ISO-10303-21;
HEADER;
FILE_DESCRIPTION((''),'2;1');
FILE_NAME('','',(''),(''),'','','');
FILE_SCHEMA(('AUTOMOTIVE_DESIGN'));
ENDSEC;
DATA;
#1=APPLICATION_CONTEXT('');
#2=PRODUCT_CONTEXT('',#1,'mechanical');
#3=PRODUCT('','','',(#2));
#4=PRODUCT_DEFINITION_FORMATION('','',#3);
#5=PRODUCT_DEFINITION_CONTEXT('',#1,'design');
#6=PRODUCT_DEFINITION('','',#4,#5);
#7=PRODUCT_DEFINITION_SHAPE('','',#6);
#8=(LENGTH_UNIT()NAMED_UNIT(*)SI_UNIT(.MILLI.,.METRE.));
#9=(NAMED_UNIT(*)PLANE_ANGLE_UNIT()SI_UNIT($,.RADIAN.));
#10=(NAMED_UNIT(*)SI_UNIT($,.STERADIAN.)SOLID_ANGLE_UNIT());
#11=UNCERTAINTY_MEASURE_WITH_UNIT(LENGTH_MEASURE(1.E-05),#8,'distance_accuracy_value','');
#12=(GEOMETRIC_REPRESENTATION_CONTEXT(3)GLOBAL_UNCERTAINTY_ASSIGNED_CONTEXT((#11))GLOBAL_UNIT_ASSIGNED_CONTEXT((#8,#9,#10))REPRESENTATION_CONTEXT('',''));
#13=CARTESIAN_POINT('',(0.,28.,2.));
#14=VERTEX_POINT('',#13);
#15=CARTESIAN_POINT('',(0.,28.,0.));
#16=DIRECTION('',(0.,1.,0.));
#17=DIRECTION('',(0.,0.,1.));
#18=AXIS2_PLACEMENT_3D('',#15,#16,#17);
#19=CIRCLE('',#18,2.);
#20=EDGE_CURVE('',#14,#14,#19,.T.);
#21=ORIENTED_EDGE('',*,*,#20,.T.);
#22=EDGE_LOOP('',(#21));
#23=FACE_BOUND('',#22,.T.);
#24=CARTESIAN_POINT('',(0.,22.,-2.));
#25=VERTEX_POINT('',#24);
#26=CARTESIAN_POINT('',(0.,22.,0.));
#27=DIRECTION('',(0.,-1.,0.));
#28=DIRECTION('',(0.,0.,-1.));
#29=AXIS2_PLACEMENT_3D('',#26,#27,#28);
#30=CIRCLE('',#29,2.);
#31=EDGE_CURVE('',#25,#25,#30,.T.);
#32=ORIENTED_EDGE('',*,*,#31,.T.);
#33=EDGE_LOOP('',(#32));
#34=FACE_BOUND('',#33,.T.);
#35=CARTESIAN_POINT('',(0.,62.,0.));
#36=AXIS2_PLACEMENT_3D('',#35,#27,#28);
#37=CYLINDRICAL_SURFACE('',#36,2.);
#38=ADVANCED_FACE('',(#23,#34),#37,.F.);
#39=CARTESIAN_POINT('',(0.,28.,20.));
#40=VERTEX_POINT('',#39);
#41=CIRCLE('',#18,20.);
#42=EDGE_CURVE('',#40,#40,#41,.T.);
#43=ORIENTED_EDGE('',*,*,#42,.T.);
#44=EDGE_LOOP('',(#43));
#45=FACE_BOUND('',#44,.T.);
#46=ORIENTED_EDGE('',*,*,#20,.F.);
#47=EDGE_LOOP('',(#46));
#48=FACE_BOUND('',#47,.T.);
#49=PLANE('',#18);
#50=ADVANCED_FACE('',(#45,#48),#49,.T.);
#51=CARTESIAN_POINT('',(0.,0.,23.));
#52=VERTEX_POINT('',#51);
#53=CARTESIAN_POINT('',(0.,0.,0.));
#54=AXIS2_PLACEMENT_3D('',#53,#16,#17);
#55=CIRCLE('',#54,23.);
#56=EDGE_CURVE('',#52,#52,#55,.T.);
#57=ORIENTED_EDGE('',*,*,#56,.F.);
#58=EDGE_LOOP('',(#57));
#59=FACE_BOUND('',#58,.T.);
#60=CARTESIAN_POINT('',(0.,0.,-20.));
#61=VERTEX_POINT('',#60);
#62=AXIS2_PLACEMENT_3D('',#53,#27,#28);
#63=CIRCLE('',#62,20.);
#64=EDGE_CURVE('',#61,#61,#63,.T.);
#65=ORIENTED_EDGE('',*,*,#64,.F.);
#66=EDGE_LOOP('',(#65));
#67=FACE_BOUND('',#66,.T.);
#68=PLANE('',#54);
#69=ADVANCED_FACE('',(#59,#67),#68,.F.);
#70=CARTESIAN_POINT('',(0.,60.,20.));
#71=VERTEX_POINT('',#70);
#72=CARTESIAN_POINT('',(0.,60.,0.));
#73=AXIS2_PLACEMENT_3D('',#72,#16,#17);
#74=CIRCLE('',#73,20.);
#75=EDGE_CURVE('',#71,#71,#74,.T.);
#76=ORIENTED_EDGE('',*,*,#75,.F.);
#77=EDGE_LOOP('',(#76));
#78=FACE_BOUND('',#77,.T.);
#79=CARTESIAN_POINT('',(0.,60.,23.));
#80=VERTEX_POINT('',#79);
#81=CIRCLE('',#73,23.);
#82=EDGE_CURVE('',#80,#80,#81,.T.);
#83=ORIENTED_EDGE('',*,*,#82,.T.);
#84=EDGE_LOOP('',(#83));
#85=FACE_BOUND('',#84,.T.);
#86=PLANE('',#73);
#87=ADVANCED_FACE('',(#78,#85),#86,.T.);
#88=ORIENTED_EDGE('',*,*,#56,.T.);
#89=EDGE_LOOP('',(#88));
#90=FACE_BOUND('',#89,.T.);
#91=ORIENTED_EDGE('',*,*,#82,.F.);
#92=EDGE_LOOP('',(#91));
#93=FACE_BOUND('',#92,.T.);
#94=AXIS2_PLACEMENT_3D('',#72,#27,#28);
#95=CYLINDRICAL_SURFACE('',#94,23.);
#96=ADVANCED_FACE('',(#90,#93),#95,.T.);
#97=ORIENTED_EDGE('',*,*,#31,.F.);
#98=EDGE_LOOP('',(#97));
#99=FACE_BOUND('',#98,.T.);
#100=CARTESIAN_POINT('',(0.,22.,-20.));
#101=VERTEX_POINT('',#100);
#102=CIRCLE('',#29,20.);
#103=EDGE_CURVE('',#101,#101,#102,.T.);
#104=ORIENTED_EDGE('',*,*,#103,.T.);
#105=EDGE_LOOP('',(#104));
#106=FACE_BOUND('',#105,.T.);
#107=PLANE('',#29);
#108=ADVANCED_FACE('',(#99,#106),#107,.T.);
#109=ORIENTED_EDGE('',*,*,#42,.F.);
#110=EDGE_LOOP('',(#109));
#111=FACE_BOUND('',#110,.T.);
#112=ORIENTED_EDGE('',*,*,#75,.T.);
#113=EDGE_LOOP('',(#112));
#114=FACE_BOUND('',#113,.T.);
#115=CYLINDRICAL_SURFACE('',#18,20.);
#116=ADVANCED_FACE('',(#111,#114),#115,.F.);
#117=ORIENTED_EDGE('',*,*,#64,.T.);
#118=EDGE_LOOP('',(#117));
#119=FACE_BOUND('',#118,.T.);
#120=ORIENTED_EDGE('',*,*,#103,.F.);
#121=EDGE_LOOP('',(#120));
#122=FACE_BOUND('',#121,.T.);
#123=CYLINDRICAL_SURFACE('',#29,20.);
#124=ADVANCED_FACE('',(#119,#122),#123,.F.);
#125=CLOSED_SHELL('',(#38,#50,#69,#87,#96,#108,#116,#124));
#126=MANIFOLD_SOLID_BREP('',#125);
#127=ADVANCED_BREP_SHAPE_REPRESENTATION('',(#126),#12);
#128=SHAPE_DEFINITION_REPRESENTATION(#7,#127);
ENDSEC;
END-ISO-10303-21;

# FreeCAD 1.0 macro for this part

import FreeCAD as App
import Part
import Sketcher

doc = App.newDocument("Part")
body = doc.addObject("PartDesign::Body", "Body")

sketch1 = body.newObject("Sketcher::SketchObject", "Sketch")
sketch1.AttachmentSupport = (doc.getObject("XZ_Plane"), [""])
sketch1.MapMode = "FlatFace"
sketch1.addGeometry(Part.Circle(App.Vector(0, 0, 0), App.Vector(0, 0, 1), 23), False)
sketch1.addConstraint([
    Sketcher.Constraint("Coincident", 0, 3, -1, 1),
    Sketcher.Constraint("Diameter", 0, 46.0),
])
pad1 = body.newObject("PartDesign::Pad", "Pad")
pad1.Profile = sketch1
pad1.Length = 60
pad1.Reversed = True

sketch2 = body.newObject("Sketcher::SketchObject", "Sketch001")
sketch2.AttachmentSupport = (doc.getObject("XZ_Plane"), [""])
sketch2.MapMode = "FlatFace"
sketch2.addGeometry(Part.Circle(App.Vector(0, 0, 0), App.Vector(0, 0, 1), 20), False)
sketch2.addConstraint([
    Sketcher.Constraint("Coincident", 0, 3, -1, 1),
    Sketcher.Constraint("Diameter", 0, 40.0),
])
pocket1 = body.newObject("PartDesign::Pocket", "Pocket")
pocket1.Profile = sketch2
pocket1.Length = 22

sketch3 = body.newObject("Sketcher::SketchObject", "Sketch002")
sketch3.AttachmentSupport = (doc.getObject("XZ_Plane"), [""])
sketch3.MapMode = "FlatFace"
sketch3.AttachmentOffset = App.Placement(App.Vector(0, 0, -28), App.Rotation())
sketch3.addGeometry(Part.Circle(App.Vector(0, 0, 0), App.Vector(0, 0, 1), 20), False)
sketch3.addConstraint([
    Sketcher.Constraint("Coincident", 0, 3, -1, 1),
    Sketcher.Constraint("Diameter", 0, 40.0),
])
pocket2 = body.newObject("PartDesign::Pocket", "Pocket001")
pocket2.Profile = sketch3
pocket2.Length = 32

sketch4 = body.newObject("Sketcher::SketchObject", "Sketch003")
sketch4.AttachmentSupport = (doc.getObject("XZ_Plane"), [""])
sketch4.MapMode = "FlatFace"
sketch4.AttachmentOffset = App.Placement(App.Vector(0, 0, -22), App.Rotation())
sketch4.addGeometry(Part.Circle(App.Vector(0, 0, 0), App.Vector(0, 0, 1), 2), False)
sketch4.addConstraint([
    Sketcher.Constraint("Coincident", 0, 3, -1, 1),
    Sketcher.Constraint("Diameter", 0, 4.0),
])
pocket3 = body.newObject("PartDesign::Pocket", "Pocket002")
pocket3.Profile = sketch4
pocket3.Length = 40

doc.recompute()
